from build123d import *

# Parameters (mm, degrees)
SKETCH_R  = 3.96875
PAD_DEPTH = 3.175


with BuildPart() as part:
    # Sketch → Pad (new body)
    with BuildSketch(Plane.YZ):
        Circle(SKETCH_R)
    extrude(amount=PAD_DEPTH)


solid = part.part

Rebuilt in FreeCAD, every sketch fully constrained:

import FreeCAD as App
import Part
import Sketcher
from FreeCAD import Vector
Q = App.Units.Quantity

doc = App.newDocument("Part")
body = doc.addObject("PartDesign::Body", "Body")

sketch1 = doc.addObject("Sketcher::SketchObject", "Sketch")
body.addObject(sketch1)
sketch1.AttachmentSupport = (doc.YZ_Plane, [""])
sketch1.MapMode = "FlatFace"
sketch1.addGeometry(Part.Circle(Vector(0, 0, 0), Vector(0, 0, 1), 3.96875), False)
sketch1.addConstraint([
    Sketcher.Constraint("Coincident", 0, 3, -1, 1),
    Sketcher.Constraint("Diameter", 0, Q("0.3125 in")),
])
pad1 = doc.addObject("PartDesign::Pad", "Pad")
body.addObject(pad1)
pad1.Profile = sketch1
pad1.Length = Q("0.125 in")

doc.recompute()
